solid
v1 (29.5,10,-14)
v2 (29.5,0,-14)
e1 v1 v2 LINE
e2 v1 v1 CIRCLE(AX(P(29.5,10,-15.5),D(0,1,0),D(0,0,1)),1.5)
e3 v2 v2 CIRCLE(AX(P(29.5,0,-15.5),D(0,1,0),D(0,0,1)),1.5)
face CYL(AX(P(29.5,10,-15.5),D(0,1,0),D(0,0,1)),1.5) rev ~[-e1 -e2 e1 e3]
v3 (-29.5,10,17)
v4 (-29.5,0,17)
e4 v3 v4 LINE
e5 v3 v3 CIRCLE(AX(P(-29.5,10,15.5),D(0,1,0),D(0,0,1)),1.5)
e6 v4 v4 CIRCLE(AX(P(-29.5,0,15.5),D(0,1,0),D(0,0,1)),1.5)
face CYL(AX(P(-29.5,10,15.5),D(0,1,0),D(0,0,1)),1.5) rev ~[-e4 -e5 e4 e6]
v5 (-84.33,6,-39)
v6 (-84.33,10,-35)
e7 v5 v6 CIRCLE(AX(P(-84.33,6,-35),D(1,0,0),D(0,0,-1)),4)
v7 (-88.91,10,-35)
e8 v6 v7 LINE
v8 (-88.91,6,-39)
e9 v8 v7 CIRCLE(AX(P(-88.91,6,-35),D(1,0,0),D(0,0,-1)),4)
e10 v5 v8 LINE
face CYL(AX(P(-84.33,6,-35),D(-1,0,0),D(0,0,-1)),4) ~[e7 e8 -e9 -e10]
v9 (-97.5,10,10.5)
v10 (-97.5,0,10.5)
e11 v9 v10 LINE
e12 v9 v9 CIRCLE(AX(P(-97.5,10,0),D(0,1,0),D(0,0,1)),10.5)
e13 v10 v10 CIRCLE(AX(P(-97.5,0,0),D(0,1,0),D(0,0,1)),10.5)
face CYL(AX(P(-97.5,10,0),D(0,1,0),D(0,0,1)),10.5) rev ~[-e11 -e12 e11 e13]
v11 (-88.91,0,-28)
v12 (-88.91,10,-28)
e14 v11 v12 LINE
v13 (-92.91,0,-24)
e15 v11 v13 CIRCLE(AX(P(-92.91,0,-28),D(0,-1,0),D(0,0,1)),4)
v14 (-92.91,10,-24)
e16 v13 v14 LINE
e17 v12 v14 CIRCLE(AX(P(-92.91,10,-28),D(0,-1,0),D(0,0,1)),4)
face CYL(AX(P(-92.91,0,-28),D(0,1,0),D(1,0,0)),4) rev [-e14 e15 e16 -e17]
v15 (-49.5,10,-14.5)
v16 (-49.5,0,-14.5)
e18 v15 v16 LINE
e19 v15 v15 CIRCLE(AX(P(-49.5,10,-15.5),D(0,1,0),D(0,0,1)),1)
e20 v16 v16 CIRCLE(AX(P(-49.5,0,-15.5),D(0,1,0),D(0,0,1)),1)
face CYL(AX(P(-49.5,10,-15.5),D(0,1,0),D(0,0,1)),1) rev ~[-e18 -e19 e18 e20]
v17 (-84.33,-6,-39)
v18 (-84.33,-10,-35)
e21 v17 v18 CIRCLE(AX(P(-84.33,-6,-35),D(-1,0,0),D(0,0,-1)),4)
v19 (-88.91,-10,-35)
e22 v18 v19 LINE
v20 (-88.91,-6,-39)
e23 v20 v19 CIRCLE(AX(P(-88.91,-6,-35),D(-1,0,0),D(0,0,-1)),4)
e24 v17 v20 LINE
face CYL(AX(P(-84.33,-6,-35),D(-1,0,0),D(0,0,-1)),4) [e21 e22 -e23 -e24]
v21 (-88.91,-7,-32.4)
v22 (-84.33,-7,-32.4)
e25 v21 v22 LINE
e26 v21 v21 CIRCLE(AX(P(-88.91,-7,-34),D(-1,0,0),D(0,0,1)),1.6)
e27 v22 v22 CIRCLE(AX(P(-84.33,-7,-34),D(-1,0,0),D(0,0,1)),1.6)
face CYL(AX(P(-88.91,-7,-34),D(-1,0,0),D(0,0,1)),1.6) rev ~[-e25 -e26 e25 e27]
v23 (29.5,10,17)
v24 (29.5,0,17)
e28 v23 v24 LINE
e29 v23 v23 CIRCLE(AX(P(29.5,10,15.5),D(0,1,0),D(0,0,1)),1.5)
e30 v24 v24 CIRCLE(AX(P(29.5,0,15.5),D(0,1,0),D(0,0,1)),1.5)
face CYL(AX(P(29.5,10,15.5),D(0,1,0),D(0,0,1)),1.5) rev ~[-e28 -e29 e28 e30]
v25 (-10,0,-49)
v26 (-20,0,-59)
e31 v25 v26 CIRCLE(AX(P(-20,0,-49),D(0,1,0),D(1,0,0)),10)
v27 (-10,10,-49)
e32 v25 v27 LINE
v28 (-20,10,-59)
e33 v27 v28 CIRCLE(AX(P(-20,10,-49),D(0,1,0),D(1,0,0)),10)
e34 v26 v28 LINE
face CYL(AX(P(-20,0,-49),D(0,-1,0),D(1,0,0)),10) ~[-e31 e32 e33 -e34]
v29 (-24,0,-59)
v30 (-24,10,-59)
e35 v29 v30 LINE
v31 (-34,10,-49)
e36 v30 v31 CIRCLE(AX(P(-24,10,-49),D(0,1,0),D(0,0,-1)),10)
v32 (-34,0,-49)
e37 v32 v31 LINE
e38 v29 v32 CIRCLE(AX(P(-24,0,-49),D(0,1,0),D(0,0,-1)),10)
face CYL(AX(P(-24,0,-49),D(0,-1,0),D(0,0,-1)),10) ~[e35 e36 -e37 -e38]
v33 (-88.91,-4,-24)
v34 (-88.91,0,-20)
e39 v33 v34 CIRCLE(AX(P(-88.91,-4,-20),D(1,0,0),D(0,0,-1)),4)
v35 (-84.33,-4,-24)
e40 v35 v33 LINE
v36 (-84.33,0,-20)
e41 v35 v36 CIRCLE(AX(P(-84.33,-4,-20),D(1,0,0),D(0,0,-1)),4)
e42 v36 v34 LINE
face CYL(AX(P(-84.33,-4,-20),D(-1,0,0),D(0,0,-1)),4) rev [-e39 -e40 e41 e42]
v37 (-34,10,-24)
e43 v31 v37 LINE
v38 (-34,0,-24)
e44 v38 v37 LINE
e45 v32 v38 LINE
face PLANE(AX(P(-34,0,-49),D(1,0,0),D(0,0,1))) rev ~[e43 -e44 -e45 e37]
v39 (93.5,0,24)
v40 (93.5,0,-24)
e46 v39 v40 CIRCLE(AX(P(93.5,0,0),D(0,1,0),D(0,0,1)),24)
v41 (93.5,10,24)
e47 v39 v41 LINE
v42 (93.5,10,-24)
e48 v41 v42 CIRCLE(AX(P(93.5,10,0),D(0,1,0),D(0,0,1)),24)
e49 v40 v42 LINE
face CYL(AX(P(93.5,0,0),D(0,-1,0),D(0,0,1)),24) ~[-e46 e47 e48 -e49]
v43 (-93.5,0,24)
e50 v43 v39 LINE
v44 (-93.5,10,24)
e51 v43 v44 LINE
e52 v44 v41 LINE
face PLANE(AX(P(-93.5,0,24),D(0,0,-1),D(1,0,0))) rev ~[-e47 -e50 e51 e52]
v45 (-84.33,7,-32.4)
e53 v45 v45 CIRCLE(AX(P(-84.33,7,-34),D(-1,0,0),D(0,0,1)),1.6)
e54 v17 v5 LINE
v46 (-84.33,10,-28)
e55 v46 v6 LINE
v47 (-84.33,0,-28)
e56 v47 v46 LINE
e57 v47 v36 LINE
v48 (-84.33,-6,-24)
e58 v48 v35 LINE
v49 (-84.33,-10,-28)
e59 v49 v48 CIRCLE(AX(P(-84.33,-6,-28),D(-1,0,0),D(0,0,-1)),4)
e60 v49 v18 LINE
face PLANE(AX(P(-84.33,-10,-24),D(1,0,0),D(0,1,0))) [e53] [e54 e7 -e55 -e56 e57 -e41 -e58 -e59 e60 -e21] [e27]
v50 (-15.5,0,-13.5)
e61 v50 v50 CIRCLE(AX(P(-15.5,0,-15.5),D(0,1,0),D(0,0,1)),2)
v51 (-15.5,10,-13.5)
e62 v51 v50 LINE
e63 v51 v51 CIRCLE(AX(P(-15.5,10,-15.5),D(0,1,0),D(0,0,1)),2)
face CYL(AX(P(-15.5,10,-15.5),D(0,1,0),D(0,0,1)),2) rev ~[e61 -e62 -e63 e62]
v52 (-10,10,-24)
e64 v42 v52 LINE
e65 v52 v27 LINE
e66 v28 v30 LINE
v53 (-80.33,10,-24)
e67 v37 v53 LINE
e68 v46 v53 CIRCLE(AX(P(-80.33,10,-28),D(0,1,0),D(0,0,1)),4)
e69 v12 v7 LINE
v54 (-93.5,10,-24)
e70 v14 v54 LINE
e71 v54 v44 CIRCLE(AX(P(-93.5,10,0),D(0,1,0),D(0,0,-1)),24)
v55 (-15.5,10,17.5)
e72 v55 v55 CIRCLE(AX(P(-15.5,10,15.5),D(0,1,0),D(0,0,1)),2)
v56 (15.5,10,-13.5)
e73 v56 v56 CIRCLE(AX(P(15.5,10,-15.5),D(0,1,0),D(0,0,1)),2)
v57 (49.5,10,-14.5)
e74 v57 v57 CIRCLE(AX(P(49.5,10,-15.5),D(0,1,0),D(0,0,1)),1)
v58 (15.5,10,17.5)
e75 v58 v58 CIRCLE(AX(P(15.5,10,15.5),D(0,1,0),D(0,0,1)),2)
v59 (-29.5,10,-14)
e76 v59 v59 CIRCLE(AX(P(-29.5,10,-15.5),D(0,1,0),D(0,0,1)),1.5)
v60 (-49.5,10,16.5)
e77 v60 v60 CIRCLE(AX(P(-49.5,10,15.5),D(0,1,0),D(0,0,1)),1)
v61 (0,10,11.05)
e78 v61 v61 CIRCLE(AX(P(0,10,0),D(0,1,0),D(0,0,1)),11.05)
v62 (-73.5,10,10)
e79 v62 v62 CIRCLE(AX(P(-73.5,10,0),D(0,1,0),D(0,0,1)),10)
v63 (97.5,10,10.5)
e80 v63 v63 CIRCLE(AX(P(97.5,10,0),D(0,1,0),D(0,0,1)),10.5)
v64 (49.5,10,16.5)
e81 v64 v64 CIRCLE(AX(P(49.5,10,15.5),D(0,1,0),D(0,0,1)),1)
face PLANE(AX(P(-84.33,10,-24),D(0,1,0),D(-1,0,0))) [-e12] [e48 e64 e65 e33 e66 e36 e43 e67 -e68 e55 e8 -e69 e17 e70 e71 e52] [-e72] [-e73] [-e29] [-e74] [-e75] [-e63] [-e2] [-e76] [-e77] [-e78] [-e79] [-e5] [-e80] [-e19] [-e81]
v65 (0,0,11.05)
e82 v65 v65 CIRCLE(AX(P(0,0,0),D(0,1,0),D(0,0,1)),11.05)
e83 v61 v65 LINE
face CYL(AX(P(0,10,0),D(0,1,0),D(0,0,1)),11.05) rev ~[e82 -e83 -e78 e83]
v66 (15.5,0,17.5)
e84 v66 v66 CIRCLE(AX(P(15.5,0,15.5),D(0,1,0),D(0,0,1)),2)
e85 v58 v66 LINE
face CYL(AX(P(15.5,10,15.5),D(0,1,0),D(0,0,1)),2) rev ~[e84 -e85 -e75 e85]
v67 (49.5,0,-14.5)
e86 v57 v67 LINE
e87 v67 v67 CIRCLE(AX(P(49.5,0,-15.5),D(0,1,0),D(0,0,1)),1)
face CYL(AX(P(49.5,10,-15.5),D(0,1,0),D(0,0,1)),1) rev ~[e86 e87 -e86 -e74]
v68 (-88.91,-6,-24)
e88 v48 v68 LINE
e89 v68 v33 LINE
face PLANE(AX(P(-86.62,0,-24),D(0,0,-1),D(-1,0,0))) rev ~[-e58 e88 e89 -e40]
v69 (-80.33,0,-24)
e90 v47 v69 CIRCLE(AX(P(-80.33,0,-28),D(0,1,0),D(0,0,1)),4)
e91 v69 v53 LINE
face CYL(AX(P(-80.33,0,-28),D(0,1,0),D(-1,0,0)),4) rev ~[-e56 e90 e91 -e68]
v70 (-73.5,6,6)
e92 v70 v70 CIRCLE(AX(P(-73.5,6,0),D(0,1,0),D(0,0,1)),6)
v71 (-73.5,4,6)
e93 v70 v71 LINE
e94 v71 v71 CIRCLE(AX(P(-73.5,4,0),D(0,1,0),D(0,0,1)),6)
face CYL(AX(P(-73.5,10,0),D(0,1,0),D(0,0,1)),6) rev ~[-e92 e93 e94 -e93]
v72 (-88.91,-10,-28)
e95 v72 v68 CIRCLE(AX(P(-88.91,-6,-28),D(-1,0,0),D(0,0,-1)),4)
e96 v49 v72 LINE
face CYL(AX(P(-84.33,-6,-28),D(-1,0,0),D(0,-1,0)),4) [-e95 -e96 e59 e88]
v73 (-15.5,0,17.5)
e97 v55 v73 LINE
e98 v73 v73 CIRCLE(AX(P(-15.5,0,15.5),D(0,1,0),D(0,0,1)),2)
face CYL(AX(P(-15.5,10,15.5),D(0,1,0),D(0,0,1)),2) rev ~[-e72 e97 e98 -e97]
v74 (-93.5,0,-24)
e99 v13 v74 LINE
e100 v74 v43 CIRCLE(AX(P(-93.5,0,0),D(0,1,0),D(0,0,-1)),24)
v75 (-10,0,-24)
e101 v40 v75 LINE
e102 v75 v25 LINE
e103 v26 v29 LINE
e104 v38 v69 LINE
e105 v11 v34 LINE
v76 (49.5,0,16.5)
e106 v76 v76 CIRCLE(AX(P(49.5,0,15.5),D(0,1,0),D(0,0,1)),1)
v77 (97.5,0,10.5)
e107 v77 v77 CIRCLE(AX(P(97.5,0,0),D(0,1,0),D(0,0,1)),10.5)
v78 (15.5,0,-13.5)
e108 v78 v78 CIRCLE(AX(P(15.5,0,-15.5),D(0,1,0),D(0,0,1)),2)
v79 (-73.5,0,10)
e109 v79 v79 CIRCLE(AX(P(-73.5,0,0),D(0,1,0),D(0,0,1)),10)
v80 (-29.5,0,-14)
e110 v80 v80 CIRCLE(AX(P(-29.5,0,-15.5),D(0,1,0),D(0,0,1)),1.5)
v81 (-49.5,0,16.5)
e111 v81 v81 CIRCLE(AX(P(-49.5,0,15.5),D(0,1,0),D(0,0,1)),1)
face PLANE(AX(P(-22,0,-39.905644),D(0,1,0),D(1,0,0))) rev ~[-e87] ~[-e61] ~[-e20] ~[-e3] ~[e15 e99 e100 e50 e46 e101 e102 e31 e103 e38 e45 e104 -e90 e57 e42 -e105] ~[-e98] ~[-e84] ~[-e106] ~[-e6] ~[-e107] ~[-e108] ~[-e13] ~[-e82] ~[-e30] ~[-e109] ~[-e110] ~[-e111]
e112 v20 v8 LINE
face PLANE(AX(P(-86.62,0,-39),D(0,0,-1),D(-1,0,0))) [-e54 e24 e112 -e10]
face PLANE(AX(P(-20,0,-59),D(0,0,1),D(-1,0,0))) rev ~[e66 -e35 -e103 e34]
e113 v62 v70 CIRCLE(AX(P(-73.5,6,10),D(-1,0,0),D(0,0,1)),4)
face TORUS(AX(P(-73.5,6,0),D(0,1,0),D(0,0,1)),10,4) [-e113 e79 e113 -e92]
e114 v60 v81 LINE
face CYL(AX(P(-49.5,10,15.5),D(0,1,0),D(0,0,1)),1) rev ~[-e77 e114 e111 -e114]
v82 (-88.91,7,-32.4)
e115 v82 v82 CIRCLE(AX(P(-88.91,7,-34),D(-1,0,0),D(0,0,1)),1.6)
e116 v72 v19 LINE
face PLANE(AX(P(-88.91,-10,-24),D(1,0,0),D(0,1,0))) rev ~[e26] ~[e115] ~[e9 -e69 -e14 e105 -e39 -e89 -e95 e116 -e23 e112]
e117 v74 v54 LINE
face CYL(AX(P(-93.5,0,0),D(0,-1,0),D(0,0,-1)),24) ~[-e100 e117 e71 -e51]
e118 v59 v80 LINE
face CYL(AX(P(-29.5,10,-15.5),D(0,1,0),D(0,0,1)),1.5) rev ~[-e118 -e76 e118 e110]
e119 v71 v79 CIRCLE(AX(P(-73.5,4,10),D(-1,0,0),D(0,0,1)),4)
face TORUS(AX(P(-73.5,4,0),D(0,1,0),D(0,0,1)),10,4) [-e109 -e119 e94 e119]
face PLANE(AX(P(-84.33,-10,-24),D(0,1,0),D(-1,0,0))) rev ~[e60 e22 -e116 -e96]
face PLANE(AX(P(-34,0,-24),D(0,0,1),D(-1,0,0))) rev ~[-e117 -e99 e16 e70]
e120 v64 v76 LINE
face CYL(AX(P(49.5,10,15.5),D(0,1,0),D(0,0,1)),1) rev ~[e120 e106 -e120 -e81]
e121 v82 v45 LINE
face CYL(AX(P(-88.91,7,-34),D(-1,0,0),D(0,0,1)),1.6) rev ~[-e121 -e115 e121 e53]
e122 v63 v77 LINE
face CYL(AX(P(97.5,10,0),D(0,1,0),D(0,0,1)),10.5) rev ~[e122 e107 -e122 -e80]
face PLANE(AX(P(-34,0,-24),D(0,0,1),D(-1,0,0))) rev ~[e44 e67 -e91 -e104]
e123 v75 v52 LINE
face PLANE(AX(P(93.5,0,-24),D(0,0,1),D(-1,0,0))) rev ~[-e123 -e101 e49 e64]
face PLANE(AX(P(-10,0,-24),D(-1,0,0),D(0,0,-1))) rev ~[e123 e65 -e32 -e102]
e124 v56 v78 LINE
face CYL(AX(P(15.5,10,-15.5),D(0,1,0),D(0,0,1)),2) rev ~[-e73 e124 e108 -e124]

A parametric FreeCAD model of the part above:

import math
import FreeCAD as App
import Part
import Sketcher

V = App.Vector


def edges_at(feature, points):
    """Names of the edges that pass closest to the given points."""
    edges = feature.Shape.Edges
    near = lambda p: min(range(len(edges)), key=lambda i: edges[i].distToShape(Part.Vertex(*p))[0])
    return sorted({f"Edge{near(p) + 1}" for p in points})


def add_polygon(sketch, points):
    """Adds a closed chain of lines whose ends are joined by coincident constraints."""
    first, n = sketch.GeometryCount, len(points)
    for a, b in zip(points, points[1:] + points[:1]):
        sketch.addGeometry(Part.LineSegment(App.Vector(*a, 0), App.Vector(*b, 0)), False)
    for i in range(n):
        sketch.addConstraint(Sketcher.Constraint("Coincident", first + i, 2, first + (i + 1) % n, 1))

doc = App.newDocument("Part")
body = doc.addObject("PartDesign::Body", "Body")

# Sketch on XZ plane
sketch1 = body.newObject("Sketcher::SketchObject", "Sketch")
sketch1.AttachmentSupport = (doc.getObject("XZ_Plane"), [""])
sketch1.MapMode = "FlatFace"
sketch1.addGeometry([
    Part.LineSegment(V(-34, -49, 0), V(-34, -24, 0)),  # 0
    Part.LineSegment(V(-34, -24, 0), V(-93.5, -24, 0)),  # 1
    Part.ArcOfCircle(Part.Circle(V(-93.5, 0, 0), V(0, 0, 1), 24), math.radians(90), math.radians(270)),  # 2
    Part.LineSegment(V(-93.5, 24, 0), V(93.5, 24, 0)),  # 3
    Part.ArcOfCircle(Part.Circle(V(93.5, 0, 0), V(0, 0, 1), 24), math.radians(-90), math.radians(90)),  # 4
    Part.LineSegment(V(93.5, -24, 0), V(-10, -24, 0)),  # 5
    Part.LineSegment(V(-10, -24, 0), V(-10, -49, 0)),  # 6
    Part.ArcOfCircle(Part.Circle(V(-20, -49, 0), V(0, 0, 1), 10), math.radians(-90), math.radians(0)),  # 7
    Part.LineSegment(V(-20, -59, 0), V(-24, -59, 0)),  # 8
    Part.ArcOfCircle(Part.Circle(V(-24, -49, 0), V(0, 0, 1), 10), math.radians(180), math.radians(270)),  # 9
], False)
sketch1.addConstraint([
    Sketcher.Constraint("Coincident", 0, 2, 1, 1),
    Sketcher.Constraint("Tangent", 1, 2, 2, 2),
    Sketcher.Constraint("Tangent", 2, 1, 3, 1),
    Sketcher.Constraint("Tangent", 3, 2, 4, 2),
    Sketcher.Constraint("Tangent", 4, 1, 5, 1),
    Sketcher.Constraint("Coincident", 5, 2, 6, 1),
    Sketcher.Constraint("Tangent", 6, 2, 7, 2),
    Sketcher.Constraint("Tangent", 7, 1, 8, 1),
    Sketcher.Constraint("Tangent", 8, 2, 9, 2),
    Sketcher.Constraint("Tangent", 9, 1, 0, 1),
    Sketcher.Constraint("Vertical", 0),
    Sketcher.Constraint("Horizontal", 1),
    Sketcher.Constraint("Horizontal", 3),
    Sketcher.Constraint("Horizontal", 5),
    Sketcher.Constraint("Vertical", 6),
    Sketcher.Constraint("Horizontal", 8),
    Sketcher.Constraint("Equal", 2, 4),
    Sketcher.Constraint("Equal", 7, 9),
    Sketcher.Constraint("Symmetric", 2, 3, 4, 3, -1, 1),
    Sketcher.Constraint("Radius", 2, 24.0),
    Sketcher.Constraint("Radius", 7, 10.0),
    Sketcher.Constraint("DistanceX", 3, 1, 3, 2, 187.0),
    Sketcher.Constraint("DistanceX", 8, 2, 8, 1, 4.0),
    Sketcher.Constraint("DistanceY", 0, 1, 0, 2, 25.0),
    Sketcher.Constraint("DistanceX", 1, 2, 1, 1, 59.5),
])
pad1 = body.newObject("PartDesign::Pad", "Pad")
pad1.Profile = sketch1
pad1.Length = 10
pad1.Reversed = True

# Sketch on XZ plane
sketch2 = body.newObject("Sketcher::SketchObject", "Sketch001")
sketch2.AttachmentSupport = (doc.getObject("XZ_Plane"), [""])
sketch2.MapMode = "FlatFace"
sketch2.AttachmentOffset = App.Placement(V(0, 0, -10), App.Rotation())
sketch2.addGeometry([
    Part.Circle(V(-97.5, 0, 0), V(0, 0, 1), 10.5),  # 0
    Part.Circle(V(97.5, 0, 0), V(0, 0, 1), 10.5),  # 1
    Part.Circle(V(-73.5, 0, 0), V(0, 0, 1), 6),  # 2
    Part.Circle(V(0, 0, 0), V(0, 0, 1), 11.1),  # 3
    Part.Circle(V(-15.5, -15.5, 0), V(0, 0, 1), 2),  # 4
    Part.Circle(V(15.5, -15.5, 0), V(0, 0, 1), 2),  # 5
    Part.Circle(V(-15.5, 15.5, 0), V(0, 0, 1), 2),  # 6
    Part.Circle(V(15.5, 15.5, 0), V(0, 0, 1), 2),  # 7
    Part.Circle(V(29.5, -15.5, 0), V(0, 0, 1), 1.5),  # 8
    Part.Circle(V(29.5, 15.5, 0), V(0, 0, 1), 1.5),  # 9
    Part.Circle(V(-29.5, -15.5, 0), V(0, 0, 1), 1.5),  # 10
    Part.Circle(V(-29.5, 15.5, 0), V(0, 0, 1), 1.5),  # 11
    Part.Circle(V(-49.5, -15.5, 0), V(0, 0, 1), 1),  # 12
    Part.Circle(V(-49.5, 15.5, 0), V(0, 0, 1), 1),  # 13
    Part.Circle(V(49.5, -15.5, 0), V(0, 0, 1), 1),  # 14
    Part.Circle(V(49.5, 15.5, 0), V(0, 0, 1), 1),  # 15
], False)
sketch2.addConstraint([
    Sketcher.Constraint("Coincident", 3, 3, -1, 1),
    Sketcher.Constraint("Equal", 0, 1),
    Sketcher.Constraint("Equal", 4, 5),
    Sketcher.Constraint("Equal", 5, 6),
    Sketcher.Constraint("Equal", 6, 7),
    Sketcher.Constraint("Equal", 8, 9),
    Sketcher.Constraint("Equal", 9, 10),
    Sketcher.Constraint("Equal", 10, 11),
    Sketcher.Constraint("Equal", 12, 13),
    Sketcher.Constraint("Equal", 13, 14),
    Sketcher.Constraint("Equal", 14, 15),
    Sketcher.Constraint("Symmetric", 0, 3, 1, 3, -1, 1),
    Sketcher.Constraint("Symmetric", 5, 3, 6, 3, -1, 1),
    Sketcher.Constraint("Symmetric", 4, 3, 7, 3, -1, 1),
    Sketcher.Constraint("Symmetric", 9, 3, 10, 3, -1, 1),
    Sketcher.Constraint("Symmetric", 8, 3, 11, 3, -1, 1),
    Sketcher.Constraint("Symmetric", 13, 3, 14, 3, -1, 1),
    Sketcher.Constraint("Symmetric", 12, 3, 15, 3, -1, 1),
    Sketcher.Constraint("Symmetric", 4, 3, 5, 3, -2),
    Sketcher.Constraint("Symmetric", 8, 3, 10, 3, -2),
    Sketcher.Constraint("Symmetric", 12, 3, 14, 3, -2),
    Sketcher.Constraint("PointOnObject", 0, 3, -1),
    Sketcher.Constraint("PointOnObject", 2, 3, -1),
    Sketcher.Constraint("Horizontal", 5, 3, 8, 3),
    Sketcher.Constraint("Horizontal", 10, 3, 12, 3),
    Sketcher.Constraint("Diameter", 0, 21.0),
    Sketcher.Constraint("Diameter", 2, 12.0),
    Sketcher.Constraint("Diameter", 4, 4.0),
    Sketcher.Constraint("Diameter", 8, 3.0),
    Sketcher.Constraint("Diameter", 12, 2.0),
    Sketcher.Constraint("Diameter", 3, 22.1),
    Sketcher.Constraint("DistanceX", 0, 3, 1, 3, 195.0),
    Sketcher.Constraint("DistanceX", 0, 3, 2, 3, 24.0),
    Sketcher.Constraint("DistanceX", 2, 3, 4, 3, 58.0),
    Sketcher.Constraint("DistanceY", 4, 3, 6, 3, 31.0),
    Sketcher.Constraint("DistanceX", 5, 3, 8, 3, 14.0),
    Sketcher.Constraint("DistanceX", 12, 3, 10, 3, 20.0),
])
pocket1 = body.newObject("PartDesign::Pocket", "Pocket")
pocket1.Profile = sketch2
pocket1.Length = 10
pocket1.Reversed = True
doc.recompute()

fillet = body.newObject("PartDesign::Fillet", "Fillet")
fillet.Base = (pocket1, edges_at(pocket1, [(-73.5, 10, -6)]))
fillet.Radius = 4
doc.recompute()

fillet2 = body.newObject("PartDesign::Fillet", "Fillet001")
fillet2.Base = (fillet, edges_at(fillet, [(-73.5, 0, -6)]))
fillet2.Radius = 4

# Sketch on XY plane
sketch3 = body.newObject("Sketcher::SketchObject", "Sketch002")
sketch3.AttachmentSupport = (doc.getObject("XY_Plane"), [""])
sketch3.MapMode = "FlatFace"
sketch3.AttachmentOffset = App.Placement(V(0, 0, -24), App.Rotation())
add_polygon(sketch3, [(-84.3, 10), (-84.3, -10), (-88.9, -10), (-88.9, 10)])  # lines 0-3
sketch3.addConstraint([
    Sketcher.Constraint("Vertical", 0),
    Sketcher.Constraint("Horizontal", 1),
    Sketcher.Constraint("Vertical", 2),
    Sketcher.Constraint("Horizontal", 3),
    Sketcher.Constraint("DistanceY", 0, 2, 0, 1, 20.0),
    Sketcher.Constraint("DistanceY", 0, 2, -1, 1, 10.0),
    Sketcher.Constraint("DistanceX", 1, 2, 1, 1, 4.58),
    Sketcher.Constraint("DistanceX", 0, 2, -1, 1, 84.33),
])
pad2 = body.newObject("PartDesign::Pad", "Pad001")
pad2.Profile = sketch3
pad2.Length = 15
pad2.Reversed = True
doc.recompute()

fillet3 = body.newObject("PartDesign::Fillet", "Fillet002")
fillet3.Base = (pad2, edges_at(pad2, [(-86.62, 0, -24)]))
fillet3.Radius = 4
doc.recompute()

fillet4 = body.newObject("PartDesign::Fillet", "Fillet003")
fillet4.Base = (fillet3, edges_at(fillet3, [(-84.33, 5, -24), (-88.91, 5, -24)]))
fillet4.Radius = 4
doc.recompute()

fillet5 = body.newObject("PartDesign::Fillet", "Fillet004")
fillet5.Base = (fillet4, edges_at(fillet4, [(-86.62, -10, -24), (-86.62, -10, -39), (-86.62, 10, -39)]))
fillet5.Radius = 4

# Sketch on YZ plane
sketch4 = body.newObject("Sketcher::SketchObject", "Sketch003")
sketch4.AttachmentSupport = (doc.getObject("YZ_Plane"), [""])
sketch4.MapMode = "FlatFace"
sketch4.AttachmentOffset = App.Placement(V(0, 0, -88.91), App.Rotation())
sketch4.addGeometry([
    Part.Circle(V(7, -34, 0), V(0, 0, 1), 1.6),
    Part.Circle(V(-7, -34, 0), V(0, 0, 1), 1.6),
], False)
sketch4.addConstraint([
    Sketcher.Constraint("Equal", 0, 1),
    Sketcher.Constraint("Symmetric", 0, 3, 1, 3, -2),
    Sketcher.Constraint("Diameter", 0, 3.2),
    Sketcher.Constraint("DistanceX", -1, 1, 0, 3, 7.0),
    Sketcher.Constraint("DistanceY", 0, 3, -1, 1, 34.0),
])
pocket2 = body.newObject("PartDesign::Pocket", "Pocket001")
pocket2.Profile = sketch4
pocket2.Length = 15
pocket2.Reversed = True

doc.recompute()
